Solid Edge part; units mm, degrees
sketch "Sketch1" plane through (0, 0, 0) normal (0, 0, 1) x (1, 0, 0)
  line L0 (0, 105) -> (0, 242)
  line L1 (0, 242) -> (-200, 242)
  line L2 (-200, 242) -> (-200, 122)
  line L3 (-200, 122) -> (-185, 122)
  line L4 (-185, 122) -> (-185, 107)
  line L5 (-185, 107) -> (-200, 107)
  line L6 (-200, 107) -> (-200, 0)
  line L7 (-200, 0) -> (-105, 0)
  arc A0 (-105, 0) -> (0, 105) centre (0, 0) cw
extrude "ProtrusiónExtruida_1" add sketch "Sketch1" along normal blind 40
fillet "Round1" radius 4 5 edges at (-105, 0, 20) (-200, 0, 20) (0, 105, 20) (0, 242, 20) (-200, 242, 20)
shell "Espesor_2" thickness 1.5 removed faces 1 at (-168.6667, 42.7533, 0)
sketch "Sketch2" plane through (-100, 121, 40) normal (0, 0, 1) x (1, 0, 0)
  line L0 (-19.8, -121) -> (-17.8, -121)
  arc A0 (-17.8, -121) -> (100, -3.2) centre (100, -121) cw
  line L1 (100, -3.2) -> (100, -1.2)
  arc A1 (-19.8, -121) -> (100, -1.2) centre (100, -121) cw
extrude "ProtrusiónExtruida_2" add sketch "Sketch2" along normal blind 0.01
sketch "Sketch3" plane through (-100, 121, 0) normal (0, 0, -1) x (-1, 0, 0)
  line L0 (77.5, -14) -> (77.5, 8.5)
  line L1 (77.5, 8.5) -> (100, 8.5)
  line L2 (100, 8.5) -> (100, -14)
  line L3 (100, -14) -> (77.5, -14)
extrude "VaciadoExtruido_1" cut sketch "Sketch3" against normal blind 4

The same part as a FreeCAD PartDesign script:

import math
import FreeCAD as App
import Part
import Sketcher
from FreeCAD import Vector
Q = App.Units.Quantity


def edges_at(feature, points):
    """Names of the edges that pass closest to the given points."""
    edges = feature.Shape.Edges
    near = lambda p: min(range(len(edges)), key=lambda i: edges[i].distToShape(Part.Vertex(*p))[0])
    return sorted({f"Edge{near(p) + 1}" for p in points})


def faces_at(feature, points):
    """Names of the faces that lie closest to the given points."""
    faces = feature.Shape.Faces
    near = lambda p: min(range(len(faces)), key=lambda i: faces[i].distToShape(Part.Vertex(*p))[0])
    return sorted({f"Face{near(p) + 1}" for p in points})


def add_polygon(sketch, points):
    """Adds a closed chain of lines whose ends are joined by coincident constraints."""
    first, n = sketch.GeometryCount, len(points)
    for a, b in zip(points, points[1:] + points[:1]):
        sketch.addGeometry(Part.LineSegment(App.Vector(*a, 0), App.Vector(*b, 0)), False)
    for i in range(n):
        sketch.addConstraint(Sketcher.Constraint("Coincident", first + i, 2, first + (i + 1) % n, 1))

doc = App.newDocument("Part")
body = doc.addObject("PartDesign::Body", "Body")

# Sketch on XY plane
sketch1 = body.newObject("Sketcher::SketchObject", "Sketch")
sketch1.AttachmentSupport = (doc.getObject("XY_Plane"), [""])
sketch1.MapMode = "FlatFace"
sketch1.addGeometry([
    Part.ArcOfCircle(Part.Circle(Vector(0, 0, 0), Vector(0, 0, 1), 105), math.radians(90), math.radians(180)),  # 0
    Part.LineSegment(Vector(0, 105, 0), Vector(0, 242, 0)),  # 1
    Part.LineSegment(Vector(0, 242, 0), Vector(-200, 242, 0)),  # 2
    Part.LineSegment(Vector(-200, 242, 0), Vector(-200, 122, 0)),  # 3
    Part.LineSegment(Vector(-200, 122, 0), Vector(-185, 122, 0)),  # 4
    Part.LineSegment(Vector(-185, 122, 0), Vector(-185, 107, 0)),  # 5
    Part.LineSegment(Vector(-185, 107, 0), Vector(-200, 107, 0)),  # 6
    Part.LineSegment(Vector(-200, 107, 0), Vector(-200, 0, 0)),  # 7
    Part.LineSegment(Vector(-200, 0, 0), Vector(-105, 0, 0)),  # 8
], False)
sketch1.addConstraint([
    Sketcher.Constraint("Coincident", 0, 1, 1, 1),
    Sketcher.Constraint("Coincident", 1, 2, 2, 1),
    Sketcher.Constraint("Coincident", 2, 2, 3, 1),
    Sketcher.Constraint("Coincident", 3, 2, 4, 1),
    Sketcher.Constraint("Coincident", 4, 2, 5, 1),
    Sketcher.Constraint("Coincident", 5, 2, 6, 1),
    Sketcher.Constraint("Coincident", 6, 2, 7, 1),
    Sketcher.Constraint("Coincident", 7, 2, 8, 1),
    Sketcher.Constraint("Coincident", 8, 2, 0, 2),
    Sketcher.Constraint("Vertical", 1),
    Sketcher.Constraint("Horizontal", 2),
    Sketcher.Constraint("Vertical", 3),
    Sketcher.Constraint("Horizontal", 4),
    Sketcher.Constraint("Vertical", 5),
    Sketcher.Constraint("Horizontal", 6),
    Sketcher.Constraint("Vertical", 7),
    Sketcher.Constraint("Horizontal", 8),
    Sketcher.Constraint("Coincident", 0, 3, -1, 1),
    Sketcher.Constraint("PointOnObject", 0, 1, -2),
    Sketcher.Constraint("PointOnObject", 7, 2, -1),
    Sketcher.Constraint("Vertical", 3, 2, 6, 2),
    Sketcher.Constraint("Equal", 6, 5),
    Sketcher.Constraint("Radius", 0, Q("105 mm")),
    Sketcher.Constraint("DistanceX", 2, 2, 2, 1, Q("200 mm")),
    Sketcher.Constraint("DistanceX", 4, 1, 4, 2, Q("15 mm")),
    Sketcher.Constraint("DistanceY", 1, 1, 1, 2, Q("137 mm")),
    Sketcher.Constraint("DistanceY", 3, 2, 3, 1, Q("120 mm")),
])
pad1 = body.newObject("PartDesign::Pad", "Pad")
pad1.Profile = sketch1
pad1.Length = 40
doc.recompute()

fillet = body.newObject("PartDesign::Fillet", "Fillet")
fillet.Base = (pad1, edges_at(pad1, [
    (-105, 0, 20),
    (-200, 0, 20),
    (0, 105, 20),
    (0, 242, 20),
    (-200, 242, 20),
]))
fillet.Radius = 4
doc.recompute()

thickness = body.newObject("PartDesign::Thickness", "Thickness")
thickness.Base = (fillet, faces_at(fillet, [(-168.667, 42.753, 0)]))
thickness.Value = 1.5
thickness.Reversed = True
thickness.Join = "Intersection"

# Sketch on XY plane
sketch2 = body.newObject("Sketcher::SketchObject", "Sketch001")
sketch2.AttachmentSupport = (doc.getObject("XY_Plane"), [""])
sketch2.MapMode = "FlatFace"
sketch2.AttachmentOffset = App.Placement(Vector(0, 0, 40), App.Rotation())
sketch2.addGeometry([
    Part.ArcOfCircle(Part.Circle(Vector(0, 0, 0), Vector(0, 0, 1), 119.8), math.radians(90), math.radians(180)),
    Part.LineSegment(Vector(-119.8, 0, 0), Vector(-117.8, 0, 0)),
    Part.ArcOfCircle(Part.Circle(Vector(0, 0, 0), Vector(0, 0, 1), 117.8), math.radians(90), math.radians(180)),
    Part.LineSegment(Vector(0, 117.8, 0), Vector(0, 119.8, 0)),
], False)
sketch2.addConstraint([
    Sketcher.Constraint("Coincident", 0, 2, 1, 1),
    Sketcher.Constraint("Coincident", 1, 2, 2, 2),
    Sketcher.Constraint("Coincident", 2, 1, 3, 1),
    Sketcher.Constraint("Coincident", 3, 2, 0, 1),
    Sketcher.Constraint("Horizontal", 1),
    Sketcher.Constraint("Vertical", 3),
    Sketcher.Constraint("Coincident", 0, 3, -1, 1),
    Sketcher.Constraint("Coincident", 2, 3, -1, 1),
    Sketcher.Constraint("PointOnObject", 0, 2, -1),
    Sketcher.Constraint("PointOnObject", 2, 1, -2),
    Sketcher.Constraint("Radius", 0, Q("119.8 mm")),
    Sketcher.Constraint("Radius", 2, Q("117.8 mm")),
])
pad2 = body.newObject("PartDesign::Pad", "Pad001")
pad2.Profile = sketch2
pad2.Length = 0.01

# Sketch on XY plane
sketch3 = body.newObject("Sketcher::SketchObject", "Sketch002")
sketch3.AttachmentSupport = (doc.getObject("XY_Plane"), [""])
sketch3.MapMode = "FlatFace"
add_polygon(sketch3, [(-178, 130), (-178, 107), (-200, 107), (-200, 130)])  # lines 0-3
sketch3.addConstraint([
    Sketcher.Constraint("Vertical", 0),
    Sketcher.Constraint("Horizontal", 1),
    Sketcher.Constraint("Vertical", 2),
    Sketcher.Constraint("Horizontal", 3),
    Sketcher.Constraint("Equal", 3, 0),
    Sketcher.Constraint("DistanceX", 1, 2, 1, 1, Q("22.5 mm")),
    Sketcher.Constraint("DistanceY", -1, 1, 0, 2, Q("107 mm")),
    Sketcher.Constraint("DistanceX", 1, 2, -1, 1, Q("200 mm")),
])
pocket1 = body.newObject("PartDesign::Pocket", "Pocket")
pocket1.Profile = sketch3
pocket1.Length = 4
pocket1.Reversed = True

doc.recompute()
